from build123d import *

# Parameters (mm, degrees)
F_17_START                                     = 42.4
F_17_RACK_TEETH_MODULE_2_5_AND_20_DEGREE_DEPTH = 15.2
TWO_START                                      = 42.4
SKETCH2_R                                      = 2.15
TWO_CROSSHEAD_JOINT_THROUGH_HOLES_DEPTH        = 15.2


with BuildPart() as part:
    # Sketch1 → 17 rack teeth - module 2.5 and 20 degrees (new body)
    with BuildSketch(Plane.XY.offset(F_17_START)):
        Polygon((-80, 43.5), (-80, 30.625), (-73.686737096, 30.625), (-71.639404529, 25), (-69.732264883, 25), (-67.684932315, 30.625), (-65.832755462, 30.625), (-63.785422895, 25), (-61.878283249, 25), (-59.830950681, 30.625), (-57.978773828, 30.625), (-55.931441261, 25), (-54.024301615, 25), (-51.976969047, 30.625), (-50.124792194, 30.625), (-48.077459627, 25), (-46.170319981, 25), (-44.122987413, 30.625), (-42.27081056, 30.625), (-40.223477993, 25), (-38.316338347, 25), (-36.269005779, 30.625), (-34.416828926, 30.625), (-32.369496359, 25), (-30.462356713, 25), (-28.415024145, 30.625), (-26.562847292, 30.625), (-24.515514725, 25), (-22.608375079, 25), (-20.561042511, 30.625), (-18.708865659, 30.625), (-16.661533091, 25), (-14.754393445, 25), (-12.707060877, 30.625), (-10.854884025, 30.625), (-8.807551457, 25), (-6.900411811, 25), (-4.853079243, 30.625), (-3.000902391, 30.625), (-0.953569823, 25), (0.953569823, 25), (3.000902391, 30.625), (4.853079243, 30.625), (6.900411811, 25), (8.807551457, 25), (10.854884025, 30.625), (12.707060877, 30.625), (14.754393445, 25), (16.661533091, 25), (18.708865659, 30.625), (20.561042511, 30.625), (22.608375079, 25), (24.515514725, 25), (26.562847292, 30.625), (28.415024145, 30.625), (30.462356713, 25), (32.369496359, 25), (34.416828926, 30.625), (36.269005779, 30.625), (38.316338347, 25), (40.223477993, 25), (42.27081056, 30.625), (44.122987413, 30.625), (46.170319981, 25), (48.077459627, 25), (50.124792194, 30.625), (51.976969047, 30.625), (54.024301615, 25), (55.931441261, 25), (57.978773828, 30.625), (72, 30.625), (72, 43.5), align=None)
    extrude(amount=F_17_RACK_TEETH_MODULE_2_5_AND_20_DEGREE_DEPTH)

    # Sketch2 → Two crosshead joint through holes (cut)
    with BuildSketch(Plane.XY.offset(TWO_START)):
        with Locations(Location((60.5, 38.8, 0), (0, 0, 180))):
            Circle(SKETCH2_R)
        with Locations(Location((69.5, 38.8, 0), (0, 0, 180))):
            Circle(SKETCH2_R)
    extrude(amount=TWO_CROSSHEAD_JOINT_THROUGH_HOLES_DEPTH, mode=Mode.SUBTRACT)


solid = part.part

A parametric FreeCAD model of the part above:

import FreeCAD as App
import Part
import Sketcher
from FreeCAD import Vector
Q = App.Units.Quantity

doc = App.newDocument("Part")
params = doc.addObject("Spreadsheet::Sheet", "Params")
for row, (alias, value) in enumerate([
    ("sketch1_width", "152 mm"),
    ("pad1_length", "15.2 mm"),
    ("sketch2_diameter", "4.3 mm"),
    ("pocket1_length", "15.2 mm"),
], start=1):
    params.set(f"A{row}", alias)
    params.set(f"B{row}", "=" + value)
    params.setAlias(f"B{row}", alias)

body = doc.addObject("PartDesign::Body", "Body")

sketch1 = body.newObject("Sketcher::SketchObject", "Sketch")
sketch1.AttachmentSupport = (doc.getObject("XY_Plane"), [""])
sketch1.MapMode = "FlatFace"
sketch1.AttachmentOffset = App.Placement(Vector(0, 0, 42.4), App.Rotation())
sketch1.addGeometry([
    Part.LineSegment(Vector(-80, 43.5, 0), Vector(-80, 30.625, 0)),
    Part.LineSegment(Vector(-80, 30.625, 0), Vector(-73.686737, 30.625, 0)),
    Part.LineSegment(Vector(-73.686737, 30.625, 0), Vector(-71.639405, 25, 0)),
    Part.LineSegment(Vector(-71.639405, 25, 0), Vector(-69.732265, 25, 0)),
    Part.LineSegment(Vector(-69.732265, 25, 0), Vector(-67.684932, 30.625, 0)),
    Part.LineSegment(Vector(-67.684932, 30.625, 0), Vector(-65.832755, 30.625, 0)),
    Part.LineSegment(Vector(-65.832755, 30.625, 0), Vector(-63.785423, 25, 0)),
    Part.LineSegment(Vector(-63.785423, 25, 0), Vector(-61.878283, 25, 0)),
    Part.LineSegment(Vector(-61.878283, 25, 0), Vector(-59.830951, 30.625, 0)),
    Part.LineSegment(Vector(-59.830951, 30.625, 0), Vector(-57.978774, 30.625, 0)),
    Part.LineSegment(Vector(-57.978774, 30.625, 0), Vector(-55.931441, 25, 0)),
    Part.LineSegment(Vector(-55.931441, 25, 0), Vector(-54.024302, 25, 0)),
    Part.LineSegment(Vector(-54.024302, 25, 0), Vector(-51.976969, 30.625, 0)),
    Part.LineSegment(Vector(-51.976969, 30.625, 0), Vector(-50.124792, 30.625, 0)),
    Part.LineSegment(Vector(-50.124792, 30.625, 0), Vector(-48.07746, 25, 0)),
    Part.LineSegment(Vector(-48.07746, 25, 0), Vector(-46.17032, 25, 0)),
    Part.LineSegment(Vector(-46.17032, 25, 0), Vector(-44.122987, 30.625, 0)),
    Part.LineSegment(Vector(-44.122987, 30.625, 0), Vector(-42.270811, 30.625, 0)),
    Part.LineSegment(Vector(-42.270811, 30.625, 0), Vector(-40.223478, 25, 0)),
    Part.LineSegment(Vector(-40.223478, 25, 0), Vector(-38.316338, 25, 0)),
    Part.LineSegment(Vector(-38.316338, 25, 0), Vector(-36.269006, 30.625, 0)),
    Part.LineSegment(Vector(-36.269006, 30.625, 0), Vector(-34.416829, 30.625, 0)),
    Part.LineSegment(Vector(-34.416829, 30.625, 0), Vector(-32.369496, 25, 0)),
    Part.LineSegment(Vector(-32.369496, 25, 0), Vector(-30.462357, 25, 0)),
    Part.LineSegment(Vector(-30.462357, 25, 0), Vector(-28.415024, 30.625, 0)),
    Part.LineSegment(Vector(-28.415024, 30.625, 0), Vector(-26.562847, 30.625, 0)),
    Part.LineSegment(Vector(-26.562847, 30.625, 0), Vector(-24.515515, 25, 0)),
    Part.LineSegment(Vector(-24.515515, 25, 0), Vector(-22.608375, 25, 0)),
    Part.LineSegment(Vector(-22.608375, 25, 0), Vector(-20.561043, 30.625, 0)),
    Part.LineSegment(Vector(-20.561043, 30.625, 0), Vector(-18.708866, 30.625, 0)),
    Part.LineSegment(Vector(-18.708866, 30.625, 0), Vector(-16.661533, 25, 0)),
    Part.LineSegment(Vector(-16.661533, 25, 0), Vector(-14.754393, 25, 0)),
    Part.LineSegment(Vector(-14.754393, 25, 0), Vector(-12.707061, 30.625, 0)),
    Part.LineSegment(Vector(-12.707061, 30.625, 0), Vector(-10.854884, 30.625, 0)),
    Part.LineSegment(Vector(-10.854884, 30.625, 0), Vector(-8.807551, 25, 0)),
    Part.LineSegment(Vector(-8.807551, 25, 0), Vector(-6.900412, 25, 0)),
    Part.LineSegment(Vector(-6.900412, 25, 0), Vector(-4.853079, 30.625, 0)),
    Part.LineSegment(Vector(-4.853079, 30.625, 0), Vector(-3.000902, 30.625, 0)),
    Part.LineSegment(Vector(-3.000902, 30.625, 0), Vector(-0.95357, 25, 0)),
    Part.LineSegment(Vector(-0.95357, 25, 0), Vector(0.95357, 25, 0)),
    Part.LineSegment(Vector(0.95357, 25, 0), Vector(3.000902, 30.625, 0)),
    Part.LineSegment(Vector(3.000902, 30.625, 0), Vector(4.853079, 30.625, 0)),
    Part.LineSegment(Vector(4.853079, 30.625, 0), Vector(6.900412, 25, 0)),
    Part.LineSegment(Vector(6.900412, 25, 0), Vector(8.807551, 25, 0)),
    Part.LineSegment(Vector(8.807551, 25, 0), Vector(10.854884, 30.625, 0)),
    Part.LineSegment(Vector(10.854884, 30.625, 0), Vector(12.707061, 30.625, 0)),
    Part.LineSegment(Vector(12.707061, 30.625, 0), Vector(14.754393, 25, 0)),
    Part.LineSegment(Vector(14.754393, 25, 0), Vector(16.661533, 25, 0)),
    Part.LineSegment(Vector(16.661533, 25, 0), Vector(18.708866, 30.625, 0)),
    Part.LineSegment(Vector(18.708866, 30.625, 0), Vector(20.561043, 30.625, 0)),
    Part.LineSegment(Vector(20.561043, 30.625, 0), Vector(22.608375, 25, 0)),
    Part.LineSegment(Vector(22.608375, 25, 0), Vector(24.515515, 25, 0)),
    Part.LineSegment(Vector(24.515515, 25, 0), Vector(26.562847, 30.625, 0)),
    Part.LineSegment(Vector(26.562847, 30.625, 0), Vector(28.415024, 30.625, 0)),
    Part.LineSegment(Vector(28.415024, 30.625, 0), Vector(30.462357, 25, 0)),
    Part.LineSegment(Vector(30.462357, 25, 0), Vector(32.369496, 25, 0)),
    Part.LineSegment(Vector(32.369496, 25, 0), Vector(34.416829, 30.625, 0)),
    Part.LineSegment(Vector(34.416829, 30.625, 0), Vector(36.269006, 30.625, 0)),
    Part.LineSegment(Vector(36.269006, 30.625, 0), Vector(38.316338, 25, 0)),
    Part.LineSegment(Vector(38.316338, 25, 0), Vector(40.223478, 25, 0)),
    Part.LineSegment(Vector(40.223478, 25, 0), Vector(42.270811, 30.625, 0)),
    Part.LineSegment(Vector(42.270811, 30.625, 0), Vector(44.122987, 30.625, 0)),
    Part.LineSegment(Vector(44.122987, 30.625, 0), Vector(46.17032, 25, 0)),
    Part.LineSegment(Vector(46.17032, 25, 0), Vector(48.07746, 25, 0)),
    Part.LineSegment(Vector(48.07746, 25, 0), Vector(50.124792, 30.625, 0)),
    Part.LineSegment(Vector(50.124792, 30.625, 0), Vector(51.976969, 30.625, 0)),
    Part.LineSegment(Vector(51.976969, 30.625, 0), Vector(54.024302, 25, 0)),
    Part.LineSegment(Vector(54.024302, 25, 0), Vector(55.931441, 25, 0)),
    Part.LineSegment(Vector(55.931441, 25, 0), Vector(57.978774, 30.625, 0)),
    Part.LineSegment(Vector(57.978774, 30.625, 0), Vector(72, 30.625, 0)),
    Part.LineSegment(Vector(72, 30.625, 0), Vector(72, 43.5, 0)),
    Part.LineSegment(Vector(72, 43.5, 0), Vector(-80, 43.5, 0)),
], False)
sketch1.addConstraint([
    Sketcher.Constraint("Coincident", 0, 2, 1, 1),
    Sketcher.Constraint("Coincident", 1, 2, 2, 1),
    Sketcher.Constraint("Coincident", 2, 2, 3, 1),
    Sketcher.Constraint("Coincident", 3, 2, 4, 1),
    Sketcher.Constraint("Coincident", 4, 2, 5, 1),
    Sketcher.Constraint("Coincident", 5, 2, 6, 1),
    Sketcher.Constraint("Coincident", 6, 2, 7, 1),
    Sketcher.Constraint("Coincident", 7, 2, 8, 1),
    Sketcher.Constraint("Coincident", 8, 2, 9, 1),
    Sketcher.Constraint("Coincident", 9, 2, 10, 1),
    Sketcher.Constraint("Coincident", 10, 2, 11, 1),
    Sketcher.Constraint("Coincident", 11, 2, 12, 1),
    Sketcher.Constraint("Coincident", 12, 2, 13, 1),
    Sketcher.Constraint("Coincident", 13, 2, 14, 1),
    Sketcher.Constraint("Coincident", 14, 2, 15, 1),
    Sketcher.Constraint("Coincident", 15, 2, 16, 1),
    Sketcher.Constraint("Coincident", 16, 2, 17, 1),
    Sketcher.Constraint("Coincident", 17, 2, 18, 1),
    Sketcher.Constraint("Coincident", 18, 2, 19, 1),
    Sketcher.Constraint("Coincident", 19, 2, 20, 1),
    Sketcher.Constraint("Coincident", 20, 2, 21, 1),
    Sketcher.Constraint("Coincident", 21, 2, 22, 1),
    Sketcher.Constraint("Coincident", 22, 2, 23, 1),
    Sketcher.Constraint("Coincident", 23, 2, 24, 1),
    Sketcher.Constraint("Coincident", 24, 2, 25, 1),
    Sketcher.Constraint("Coincident", 25, 2, 26, 1),
    Sketcher.Constraint("Coincident", 26, 2, 27, 1),
    Sketcher.Constraint("Coincident", 27, 2, 28, 1),
    Sketcher.Constraint("Coincident", 28, 2, 29, 1),
    Sketcher.Constraint("Coincident", 29, 2, 30, 1),
    Sketcher.Constraint("Coincident", 30, 2, 31, 1),
    Sketcher.Constraint("Coincident", 31, 2, 32, 1),
    Sketcher.Constraint("Coincident", 32, 2, 33, 1),
    Sketcher.Constraint("Coincident", 33, 2, 34, 1),
    Sketcher.Constraint("Coincident", 34, 2, 35, 1),
    Sketcher.Constraint("Coincident", 35, 2, 36, 1),
    Sketcher.Constraint("Coincident", 36, 2, 37, 1),
    Sketcher.Constraint("Coincident", 37, 2, 38, 1),
    Sketcher.Constraint("Coincident", 38, 2, 39, 1),
    Sketcher.Constraint("Coincident", 39, 2, 40, 1),
    Sketcher.Constraint("Coincident", 40, 2, 41, 1),
    Sketcher.Constraint("Coincident", 41, 2, 42, 1),
    Sketcher.Constraint("Coincident", 42, 2, 43, 1),
    Sketcher.Constraint("Coincident", 43, 2, 44, 1),
    Sketcher.Constraint("Coincident", 44, 2, 45, 1),
    Sketcher.Constraint("Coincident", 45, 2, 46, 1),
    Sketcher.Constraint("Coincident", 46, 2, 47, 1),
    Sketcher.Constraint("Coincident", 47, 2, 48, 1),
    Sketcher.Constraint("Coincident", 48, 2, 49, 1),
    Sketcher.Constraint("Coincident", 49, 2, 50, 1),
    Sketcher.Constraint("Coincident", 50, 2, 51, 1),
    Sketcher.Constraint("Coincident", 51, 2, 52, 1),
    Sketcher.Constraint("Coincident", 52, 2, 53, 1),
    Sketcher.Constraint("Coincident", 53, 2, 54, 1),
    Sketcher.Constraint("Coincident", 54, 2, 55, 1),
    Sketcher.Constraint("Coincident", 55, 2, 56, 1),
    Sketcher.Constraint("Coincident", 56, 2, 57, 1),
    Sketcher.Constraint("Coincident", 57, 2, 58, 1),
    Sketcher.Constraint("Coincident", 58, 2, 59, 1),
    Sketcher.Constraint("Coincident", 59, 2, 60, 1),
    Sketcher.Constraint("Coincident", 60, 2, 61, 1),
    Sketcher.Constraint("Coincident", 61, 2, 62, 1),
    Sketcher.Constraint("Coincident", 62, 2, 63, 1),
    Sketcher.Constraint("Coincident", 63, 2, 64, 1),
    Sketcher.Constraint("Coincident", 64, 2, 65, 1),
    Sketcher.Constraint("Coincident", 65, 2, 66, 1),
    Sketcher.Constraint("Coincident", 66, 2, 67, 1),
    Sketcher.Constraint("Coincident", 67, 2, 68, 1),
    Sketcher.Constraint("Coincident", 68, 2, 69, 1),
    Sketcher.Constraint("Coincident", 69, 2, 70, 1),
    Sketcher.Constraint("Coincident", 70, 2, 71, 1),
    Sketcher.Constraint("Coincident", 71, 2, 0, 1),
    Sketcher.Constraint("Vertical", 0),
    Sketcher.Constraint("Horizontal", 1),
    Sketcher.Constraint("Horizontal", 3),
    Sketcher.Constraint("Horizontal", 5),
    Sketcher.Constraint("Horizontal", 7),
    Sketcher.Constraint("Horizontal", 9),
    Sketcher.Constraint("Horizontal", 11),
    Sketcher.Constraint("Horizontal", 13),
    Sketcher.Constraint("Horizontal", 15),
    Sketcher.Constraint("Horizontal", 17),
    Sketcher.Constraint("Horizontal", 19),
    Sketcher.Constraint("Horizontal", 21),
    Sketcher.Constraint("Horizontal", 23),
    Sketcher.Constraint("Horizontal", 25),
    Sketcher.Constraint("Horizontal", 27),
    Sketcher.Constraint("Horizontal", 29),
    Sketcher.Constraint("Horizontal", 31),
    Sketcher.Constraint("Horizontal", 33),
    Sketcher.Constraint("Horizontal", 35),
    Sketcher.Constraint("Horizontal", 37),
    Sketcher.Constraint("Horizontal", 39),
    Sketcher.Constraint("Horizontal", 41),
    Sketcher.Constraint("Horizontal", 43),
    Sketcher.Constraint("Horizontal", 45),
    Sketcher.Constraint("Horizontal", 47),
    Sketcher.Constraint("Horizontal", 49),
    Sketcher.Constraint("Horizontal", 51),
    Sketcher.Constraint("Horizontal", 53),
    Sketcher.Constraint("Horizontal", 55),
    Sketcher.Constraint("Horizontal", 57),
    Sketcher.Constraint("Horizontal", 59),
    Sketcher.Constraint("Horizontal", 61),
    Sketcher.Constraint("Horizontal", 63),
    Sketcher.Constraint("Horizontal", 65),
    Sketcher.Constraint("Horizontal", 67),
    Sketcher.Constraint("Horizontal", 69),
    Sketcher.Constraint("Vertical", 70),
    Sketcher.Constraint("Horizontal", 71),
    Sketcher.Constraint("Symmetric", 37, 2, 40, 2, -2),
    Sketcher.Constraint("Symmetric", 35, 2, 42, 2, -2),
    Sketcher.Constraint("Symmetric", 33, 2, 44, 2, -2),
    Sketcher.Constraint("Symmetric", 31, 2, 46, 2, -2),
    Sketcher.Constraint("Symmetric", 29, 2, 48, 2, -2),
    Sketcher.Constraint("Symmetric", 27, 2, 50, 2, -2),
    Sketcher.Constraint("Symmetric", 25, 2, 52, 2, -2),
    Sketcher.Constraint("Symmetric", 23, 2, 54, 2, -2),
    Sketcher.Constraint("Symmetric", 21, 2, 56, 2, -2),
    Sketcher.Constraint("Symmetric", 19, 2, 58, 2, -2),
    Sketcher.Constraint("Symmetric", 17, 2, 60, 2, -2),
    Sketcher.Constraint("Symmetric", 15, 2, 62, 2, -2),
    Sketcher.Constraint("Symmetric", 13, 2, 64, 2, -2),
    Sketcher.Constraint("Symmetric", 11, 2, 66, 2, -2),
    Sketcher.Constraint("Symmetric", 9, 2, 68, 2, -2),
    Sketcher.Constraint("Parallel", 2, 6),
    Sketcher.Constraint("Parallel", 4, 8),
    Sketcher.Constraint("Parallel", 6, 10),
    Sketcher.Constraint("Parallel", 8, 12),
    Sketcher.Constraint("Parallel", 10, 14),
    Sketcher.Constraint("Parallel", 12, 16),
    Sketcher.Constraint("Parallel", 14, 18),
    Sketcher.Constraint("Parallel", 16, 20),
    Sketcher.Constraint("Parallel", 18, 22),
    Sketcher.Constraint("Parallel", 20, 24),
    Sketcher.Constraint("Parallel", 22, 26),
    Sketcher.Constraint("Parallel", 24, 28),
    Sketcher.Constraint("Parallel", 26, 30),
    Sketcher.Constraint("Parallel", 28, 32),
    Sketcher.Constraint("Parallel", 30, 34),
    Sketcher.Constraint("Parallel", 32, 36),
    Sketcher.Constraint("Parallel", 34, 38),
    Sketcher.Constraint("Parallel", 36, 40),
    Sketcher.Constraint("Parallel", 38, 42),
    Sketcher.Constraint("Parallel", 40, 44),
    Sketcher.Constraint("Parallel", 42, 46),
    Sketcher.Constraint("Parallel", 44, 48),
    Sketcher.Constraint("Parallel", 46, 50),
    Sketcher.Constraint("Parallel", 48, 52),
    Sketcher.Constraint("Parallel", 50, 54),
    Sketcher.Constraint("Parallel", 52, 56),
    Sketcher.Constraint("Parallel", 54, 58),
    Sketcher.Constraint("Parallel", 56, 60),
    Sketcher.Constraint("Parallel", 58, 62),
    Sketcher.Constraint("Parallel", 60, 64),
    Sketcher.Constraint("Parallel", 62, 66),
    Sketcher.Constraint("Parallel", 64, 68),
    Sketcher.Constraint("Horizontal", 1, 2, 4, 2),
    Sketcher.Constraint("Horizontal", 3, 2, 6, 2),
    Sketcher.Constraint("Horizontal", 5, 2, 8, 2),
    Sketcher.Constraint("Horizontal", 7, 2, 10, 2),
    Sketcher.Constraint("Horizontal", 9, 2, 12, 2),
    Sketcher.Constraint("Horizontal", 11, 2, 14, 2),
    Sketcher.Constraint("Horizontal", 13, 2, 16, 2),
    Sketcher.Constraint("Horizontal", 15, 2, 18, 2),
    Sketcher.Constraint("Horizontal", 17, 2, 20, 2),
    Sketcher.Constraint("Horizontal", 19, 2, 22, 2),
    Sketcher.Constraint("Horizontal", 21, 2, 24, 2),
    Sketcher.Constraint("Horizontal", 23, 2, 26, 2),
    Sketcher.Constraint("Horizontal", 25, 2, 28, 2),
    Sketcher.Constraint("Horizontal", 27, 2, 30, 2),
    Sketcher.Constraint("Horizontal", 29, 2, 32, 2),
    Sketcher.Constraint("Horizontal", 31, 2, 34, 2),
    Sketcher.Constraint("Horizontal", 33, 2, 36, 2),
    Sketcher.Constraint("Horizontal", 35, 2, 38, 2),
    Sketcher.Constraint("Equal", 3, 7),
    Sketcher.Constraint("Equal", 5, 9),
    Sketcher.Constraint("Equal", 7, 11),
    Sketcher.Constraint("Equal", 9, 13),
    Sketcher.Constraint("Equal", 11, 15),
    Sketcher.Constraint("Equal", 13, 17),
    Sketcher.Constraint("Equal", 15, 19),
    Sketcher.Constraint("Equal", 17, 21),
    Sketcher.Constraint("Equal", 19, 23),
    Sketcher.Constraint("Equal", 21, 25),
    Sketcher.Constraint("Equal", 23, 27),
    Sketcher.Constraint("Equal", 25, 29),
    Sketcher.Constraint("Equal", 27, 31),
    Sketcher.Constraint("Equal", 29, 33),
    Sketcher.Constraint("Equal", 31, 35),
    Sketcher.Constraint("Equal", 33, 37),
    Sketcher.Constraint("Equal", 35, 39),
    Sketcher.Constraint("Equal", 37, 41),
    Sketcher.Constraint("DistanceX", 71, 2, 71, 1, 152.0),
    Sketcher.Constraint("Angle", 2, Q("-70 deg")),
    Sketcher.Constraint("DistanceX", 0, 2, -1, 1, 80.0),
    Sketcher.Constraint("DistanceY", -1, 1, 2, 2, 25.0),
    Sketcher.Constraint("DistanceY", -1, 1, 70, 2, 43.5),
    Sketcher.Constraint("DistanceY", 0, 2, 0, 1, 12.875),
    Sketcher.Constraint("DistanceX", 3, 1, 3, 2, 1.90714),
    Sketcher.Constraint("DistanceX", 11, 2, -1, 1, 54.024302),
])
sketch1.setExpression("Constraints[193]", "Params.sketch1_width")
pad1 = body.newObject("PartDesign::Pad", "Pad")
pad1.Profile = sketch1
pad1.setExpression("Length", "Params.pad1_length")

sketch2 = body.newObject("Sketcher::SketchObject", "Sketch001")
sketch2.AttachmentSupport = (doc.getObject("XY_Plane"), [""])
sketch2.MapMode = "FlatFace"
sketch2.AttachmentOffset = App.Placement(Vector(0, 0, 42.4), App.Rotation())
sketch2.addGeometry([
    Part.Circle(Vector(60.5, 38.8, 0), Vector(0, 0, 1), 2.15),
    Part.Circle(Vector(69.5, 38.8, 0), Vector(0, 0, 1), 2.15),
], False)
sketch2.addConstraint([
    Sketcher.Constraint("Equal", 0, 1),
    Sketcher.Constraint("Horizontal", 0, 3, 1, 3),
    Sketcher.Constraint("Diameter", 0, 4.3),
    Sketcher.Constraint("DistanceX", 0, 3, 1, 3, 9.0),
    Sketcher.Constraint("DistanceX", -1, 1, 0, 3, 60.5),
    Sketcher.Constraint("DistanceY", -1, 1, 0, 3, 38.8),
])
sketch2.setExpression("Constraints[2]", "Params.sketch2_diameter")
pocket1 = body.newObject("PartDesign::Pocket", "Pocket")
pocket1.Profile = sketch2
pocket1.setExpression("Length", "Params.pocket1_length")
pocket1.Reversed = True

doc.recompute()
